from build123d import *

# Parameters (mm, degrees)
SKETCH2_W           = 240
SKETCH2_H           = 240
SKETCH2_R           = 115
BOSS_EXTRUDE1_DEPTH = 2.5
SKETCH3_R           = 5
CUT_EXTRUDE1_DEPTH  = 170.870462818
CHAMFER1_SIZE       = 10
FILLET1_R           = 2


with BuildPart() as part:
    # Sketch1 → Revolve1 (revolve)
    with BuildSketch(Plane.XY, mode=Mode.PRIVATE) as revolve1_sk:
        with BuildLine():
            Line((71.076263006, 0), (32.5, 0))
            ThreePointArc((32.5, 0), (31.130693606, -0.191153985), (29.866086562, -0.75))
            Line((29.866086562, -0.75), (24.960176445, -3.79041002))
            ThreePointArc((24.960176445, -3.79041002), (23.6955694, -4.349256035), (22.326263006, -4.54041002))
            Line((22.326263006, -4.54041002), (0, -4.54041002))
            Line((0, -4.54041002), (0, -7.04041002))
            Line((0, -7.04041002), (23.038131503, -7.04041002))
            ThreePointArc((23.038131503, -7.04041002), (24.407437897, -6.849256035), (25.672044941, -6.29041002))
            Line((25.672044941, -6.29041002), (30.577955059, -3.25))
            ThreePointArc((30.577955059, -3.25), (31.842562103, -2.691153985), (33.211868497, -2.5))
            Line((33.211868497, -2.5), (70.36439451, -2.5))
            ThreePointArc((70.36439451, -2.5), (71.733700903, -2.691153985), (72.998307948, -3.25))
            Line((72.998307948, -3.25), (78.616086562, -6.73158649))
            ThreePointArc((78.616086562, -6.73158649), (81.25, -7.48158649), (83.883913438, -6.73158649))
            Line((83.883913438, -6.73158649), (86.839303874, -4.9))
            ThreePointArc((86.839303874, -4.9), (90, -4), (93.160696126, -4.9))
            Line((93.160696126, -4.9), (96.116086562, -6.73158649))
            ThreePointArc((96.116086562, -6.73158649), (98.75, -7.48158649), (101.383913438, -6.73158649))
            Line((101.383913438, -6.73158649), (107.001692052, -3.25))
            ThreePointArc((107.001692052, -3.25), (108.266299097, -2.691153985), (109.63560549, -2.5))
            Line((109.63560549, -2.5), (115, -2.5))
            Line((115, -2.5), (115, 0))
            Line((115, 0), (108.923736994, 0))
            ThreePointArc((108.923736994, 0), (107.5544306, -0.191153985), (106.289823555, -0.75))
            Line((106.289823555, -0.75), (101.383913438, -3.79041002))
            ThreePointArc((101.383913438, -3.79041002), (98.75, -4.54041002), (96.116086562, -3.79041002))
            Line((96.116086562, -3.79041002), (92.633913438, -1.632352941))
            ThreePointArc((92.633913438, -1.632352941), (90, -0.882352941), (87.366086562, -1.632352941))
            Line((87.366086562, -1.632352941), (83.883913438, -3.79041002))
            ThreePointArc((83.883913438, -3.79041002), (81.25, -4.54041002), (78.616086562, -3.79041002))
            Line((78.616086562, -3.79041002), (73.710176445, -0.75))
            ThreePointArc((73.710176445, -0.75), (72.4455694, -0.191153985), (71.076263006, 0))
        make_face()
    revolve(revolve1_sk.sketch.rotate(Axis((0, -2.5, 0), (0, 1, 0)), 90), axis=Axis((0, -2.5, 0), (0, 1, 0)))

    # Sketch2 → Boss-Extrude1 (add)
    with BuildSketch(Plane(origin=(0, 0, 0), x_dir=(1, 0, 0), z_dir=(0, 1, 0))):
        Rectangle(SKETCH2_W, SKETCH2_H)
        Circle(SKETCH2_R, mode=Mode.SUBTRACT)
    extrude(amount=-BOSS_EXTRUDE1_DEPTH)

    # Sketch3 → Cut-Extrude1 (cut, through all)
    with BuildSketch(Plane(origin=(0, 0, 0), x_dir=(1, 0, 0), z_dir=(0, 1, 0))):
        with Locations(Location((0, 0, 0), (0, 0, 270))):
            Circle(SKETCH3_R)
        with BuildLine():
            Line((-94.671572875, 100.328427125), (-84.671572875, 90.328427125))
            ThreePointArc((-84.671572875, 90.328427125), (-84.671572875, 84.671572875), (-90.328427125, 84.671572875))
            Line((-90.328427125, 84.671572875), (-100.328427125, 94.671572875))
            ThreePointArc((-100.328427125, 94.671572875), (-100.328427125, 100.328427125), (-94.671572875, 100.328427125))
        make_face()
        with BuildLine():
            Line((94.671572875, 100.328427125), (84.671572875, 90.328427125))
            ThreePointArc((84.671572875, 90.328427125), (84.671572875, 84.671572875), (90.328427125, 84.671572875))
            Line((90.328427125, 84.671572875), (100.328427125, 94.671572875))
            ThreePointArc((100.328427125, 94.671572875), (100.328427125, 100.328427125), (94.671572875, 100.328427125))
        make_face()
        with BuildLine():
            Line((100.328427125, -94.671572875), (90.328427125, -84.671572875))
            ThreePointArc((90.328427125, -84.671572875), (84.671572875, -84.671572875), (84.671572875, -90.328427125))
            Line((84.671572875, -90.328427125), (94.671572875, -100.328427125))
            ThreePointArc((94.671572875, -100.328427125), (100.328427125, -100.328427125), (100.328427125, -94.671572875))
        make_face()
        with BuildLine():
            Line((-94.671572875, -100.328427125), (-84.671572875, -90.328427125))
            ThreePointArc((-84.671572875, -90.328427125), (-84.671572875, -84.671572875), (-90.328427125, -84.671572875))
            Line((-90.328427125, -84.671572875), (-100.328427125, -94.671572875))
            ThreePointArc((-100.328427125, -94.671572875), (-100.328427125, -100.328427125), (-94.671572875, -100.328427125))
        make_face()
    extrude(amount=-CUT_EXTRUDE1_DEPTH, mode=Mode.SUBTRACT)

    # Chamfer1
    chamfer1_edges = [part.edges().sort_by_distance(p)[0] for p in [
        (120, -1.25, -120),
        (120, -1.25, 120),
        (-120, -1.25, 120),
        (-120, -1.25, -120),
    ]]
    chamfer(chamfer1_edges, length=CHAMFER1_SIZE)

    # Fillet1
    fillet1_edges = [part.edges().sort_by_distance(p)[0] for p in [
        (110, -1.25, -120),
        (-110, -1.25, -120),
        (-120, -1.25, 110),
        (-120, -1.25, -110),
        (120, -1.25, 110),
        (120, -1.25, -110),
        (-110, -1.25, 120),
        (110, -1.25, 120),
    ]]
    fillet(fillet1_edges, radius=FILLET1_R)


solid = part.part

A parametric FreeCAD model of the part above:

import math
import FreeCAD as App
import Part
import Sketcher

V = App.Vector
Q = App.Units.Quantity


def edges_at(feature, points):
    """Names of the edges that pass closest to the given points."""
    edges = feature.Shape.Edges
    near = lambda p: min(range(len(edges)), key=lambda i: edges[i].distToShape(Part.Vertex(*p))[0])
    return sorted({f"Edge{near(p) + 1}" for p in points})


def add_polygon(sketch, points):
    """Adds a closed chain of lines whose ends are joined by coincident constraints."""
    first, n = sketch.GeometryCount, len(points)
    for a, b in zip(points, points[1:] + points[:1]):
        sketch.addGeometry(Part.LineSegment(App.Vector(*a, 0), App.Vector(*b, 0)), False)
    for i in range(n):
        sketch.addConstraint(Sketcher.Constraint("Coincident", first + i, 2, first + (i + 1) % n, 1))

doc = App.newDocument("Part")
body = doc.addObject("PartDesign::Body", "Body")

# Sketch on XY plane
sketch1 = body.newObject("Sketcher::SketchObject", "Sketch")
sketch1.AttachmentSupport = (doc.getObject("XY_Plane"), [""])
sketch1.MapMode = "FlatFace"
sketch1.addGeometry([
    Part.LineSegment(V(71.1, 0, 0), V(32.5, 0, 0)),  # 0
    Part.ArcOfCircle(Part.Circle(V(32.5, -5, 0), V(0, 0, 1), 5), math.radians(90), math.radians(122)),  # 1
    Part.LineSegment(V(29.9, -0.8, 0), V(25, -3.8, 0)),  # 2
    Part.ArcOfCircle(Part.Circle(V(22.3, 0.5, 0), V(0, 0, 1), 5), math.radians(-90), math.radians(-58)),  # 3
    Part.LineSegment(V(22.3, -4.5, 0), V(0, -4.5, 0)),  # 4
    Part.LineSegment(V(0, -4.5, 0), V(0, -7, 0)),  # 5
    Part.LineSegment(V(0, -7, 0), V(23, -7, 0)),  # 6
    Part.ArcOfCircle(Part.Circle(V(23, -2, 0), V(0, 0, 1), 5), math.radians(-90), math.radians(-58)),  # 7
    Part.LineSegment(V(25.7, -6.3, 0), V(30.6, -3.2, 0)),  # 8
    Part.ArcOfCircle(Part.Circle(V(33.2, -7.5, 0), V(0, 0, 1), 5), math.radians(90), math.radians(122)),  # 9
    Part.LineSegment(V(33.2, -2.5, 0), V(70.4, -2.5, 0)),  # 10
    Part.ArcOfCircle(Part.Circle(V(70.4, -7.5, 0), V(0, 0, 1), 5), math.radians(58), math.radians(90)),  # 11
    Part.LineSegment(V(73, -3.2, 0), V(78.6, -6.7, 0)),  # 12
    Part.ArcOfCircle(Part.Circle(V(81.2, -2.5, 0), V(0, 0, 1), 5), math.radians(-122), math.radians(-58)),  # 13
    Part.LineSegment(V(83.9, -6.7, 0), V(86.8, -4.9, 0)),  # 14
    Part.ArcOfCircle(Part.Circle(V(90, -10, 0), V(0, 0, 1), 6), math.radians(58), math.radians(122)),  # 15
    Part.LineSegment(V(93.2, -4.9, 0), V(96.1, -6.7, 0)),  # 16
    Part.ArcOfCircle(Part.Circle(V(98.8, -2.5, 0), V(0, 0, 1), 5), math.radians(-122), math.radians(-58)),  # 17
    Part.LineSegment(V(101.4, -6.7, 0), V(107, -3.2, 0)),  # 18
    Part.ArcOfCircle(Part.Circle(V(109.6, -7.5, 0), V(0, 0, 1), 5), math.radians(90), math.radians(122)),  # 19
    Part.LineSegment(V(109.6, -2.5, 0), V(115, -2.5, 0)),  # 20
    Part.LineSegment(V(115, -2.5, 0), V(115, 0, 0)),  # 21
    Part.LineSegment(V(115, 0, 0), V(108.9, 0, 0)),  # 22
    Part.ArcOfCircle(Part.Circle(V(108.9, -5, 0), V(0, 0, 1), 5), math.radians(90), math.radians(122)),  # 23
    Part.LineSegment(V(106.3, -0.8, 0), V(101.4, -3.8, 0)),  # 24
    Part.ArcOfCircle(Part.Circle(V(98.8, 0.5, 0), V(0, 0, 1), 5), math.radians(-122), math.radians(-58)),  # 25
    Part.LineSegment(V(96.1, -3.8, 0), V(92.6, -1.6, 0)),  # 26
    Part.ArcOfCircle(Part.Circle(V(90, -5.9, 0), V(0, 0, 1), 5), math.radians(58), math.radians(122)),  # 27
    Part.LineSegment(V(87.4, -1.6, 0), V(83.9, -3.8, 0)),  # 28
    Part.ArcOfCircle(Part.Circle(V(81.2, 0.5, 0), V(0, 0, 1), 5), math.radians(-122), math.radians(-58)),  # 29
    Part.LineSegment(V(78.6, -3.8, 0), V(73.7, -0.8, 0)),  # 30
    Part.ArcOfCircle(Part.Circle(V(71.1, -5, 0), V(0, 0, 1), 5), math.radians(58), math.radians(90)),  # 31
], False)
sketch1.addConstraint([
    Sketcher.Constraint("Tangent", 0, 2, 1, 1),
    Sketcher.Constraint("Tangent", 1, 2, 2, 1),
    Sketcher.Constraint("Tangent", 2, 2, 3, 2),
    Sketcher.Constraint("Tangent", 3, 1, 4, 1),
    Sketcher.Constraint("Coincident", 4, 2, 5, 1),
    Sketcher.Constraint("Coincident", 5, 2, 6, 1),
    Sketcher.Constraint("Tangent", 6, 2, 7, 1),
    Sketcher.Constraint("Tangent", 7, 2, 8, 1),
    Sketcher.Constraint("Tangent", 8, 2, 9, 2),
    Sketcher.Constraint("Tangent", 9, 1, 10, 1),
    Sketcher.Constraint("Tangent", 10, 2, 11, 2),
    Sketcher.Constraint("Tangent", 11, 1, 12, 1),
    Sketcher.Constraint("Tangent", 12, 2, 13, 1),
    Sketcher.Constraint("Tangent", 13, 2, 14, 1),
    Sketcher.Constraint("Tangent", 14, 2, 15, 2),
    Sketcher.Constraint("Tangent", 15, 1, 16, 1),
    Sketcher.Constraint("Tangent", 16, 2, 17, 1),
    Sketcher.Constraint("Tangent", 17, 2, 18, 1),
    Sketcher.Constraint("Tangent", 18, 2, 19, 2),
    Sketcher.Constraint("Tangent", 19, 1, 20, 1),
    Sketcher.Constraint("Coincident", 20, 2, 21, 1),
    Sketcher.Constraint("Coincident", 21, 2, 22, 1),
    Sketcher.Constraint("Tangent", 22, 2, 23, 1),
    Sketcher.Constraint("Tangent", 23, 2, 24, 1),
    Sketcher.Constraint("Tangent", 24, 2, 25, 2),
    Sketcher.Constraint("Tangent", 25, 1, 26, 1),
    Sketcher.Constraint("Tangent", 26, 2, 27, 1),
    Sketcher.Constraint("Tangent", 27, 2, 28, 1),
    Sketcher.Constraint("Tangent", 28, 2, 29, 2),
    Sketcher.Constraint("Tangent", 29, 1, 30, 1),
    Sketcher.Constraint("Tangent", 30, 2, 31, 1),
    Sketcher.Constraint("Tangent", 31, 2, 0, 1),
    Sketcher.Constraint("Horizontal", 0),
    Sketcher.Constraint("Horizontal", 4),
    Sketcher.Constraint("Vertical", 5),
    Sketcher.Constraint("Horizontal", 6),
    Sketcher.Constraint("Horizontal", 10),
    Sketcher.Constraint("Horizontal", 20),
    Sketcher.Constraint("Vertical", 21),
    Sketcher.Constraint("Horizontal", 22),
    Sketcher.Constraint("Equal", 1, 3),
    Sketcher.Constraint("Equal", 3, 7),
    Sketcher.Constraint("Equal", 7, 9),
    Sketcher.Constraint("Equal", 9, 11),
    Sketcher.Constraint("Equal", 11, 13),
    Sketcher.Constraint("Equal", 13, 17),
    Sketcher.Constraint("Equal", 17, 19),
    Sketcher.Constraint("Equal", 19, 23),
    Sketcher.Constraint("Equal", 23, 25),
    Sketcher.Constraint("Equal", 25, 27),
    Sketcher.Constraint("Equal", 27, 29),
    Sketcher.Constraint("Equal", 29, 31),
    Sketcher.Constraint("PointOnObject", 0, 2, -1),
    Sketcher.Constraint("PointOnObject", 4, 2, -2),
    Sketcher.Constraint("PointOnObject", 21, 2, -1),
    Sketcher.Constraint("Parallel", 2, 8),
    Sketcher.Constraint("Parallel", 8, 14),
    Sketcher.Constraint("Parallel", 12, 16),
    Sketcher.Constraint("Parallel", 14, 18),
    Sketcher.Constraint("Parallel", 18, 24),
    Sketcher.Constraint("Parallel", 16, 26),
    Sketcher.Constraint("Parallel", 24, 28),
    Sketcher.Constraint("Parallel", 26, 30),
    Sketcher.Constraint("Horizontal", 13, 3, 17, 3),
    Sketcher.Constraint("Horizontal", 11, 3, 19, 3),
    Sketcher.Constraint("Horizontal", 3, 3, 25, 3),
    Sketcher.Constraint("Horizontal", 25, 3, 29, 3),
    Sketcher.Constraint("Horizontal", 8, 2, 11, 1),
    Sketcher.Constraint("Vertical", 17, 3, 25, 3),
    Sketcher.Constraint("Vertical", 15, 3, 27, 3),
    Sketcher.Constraint("Equal", 5, 21),
    Sketcher.Constraint("Radius", 1, Q("5 mm")),
    Sketcher.Constraint("Radius", 15, Q("6 mm")),
    Sketcher.Constraint("DistanceY", 5, 2, 5, 1, Q("2.5 mm")),
    Sketcher.Constraint("DistanceX", -1, 1, 15, 3, Q("90 mm")),
    Sketcher.Constraint("DistanceY", 15, 3, -1, 1, Q("10 mm")),
    Sketcher.Constraint("DistanceX", -1, 1, 20, 2, Q("115 mm")),
    Sketcher.Constraint("DistanceX", -1, 1, 1, 3, Q("32.5 mm")),
    Sketcher.Constraint("DistanceY", 14, 2, -1, 1, Q("4.9 mm")),
    Sketcher.Constraint("DistanceX", 13, 3, 17, 3, Q("17.5 mm")),
    Sketcher.Constraint("DistanceX", 6, 1, 6, 2, Q("23.038132 mm")),
    Sketcher.Constraint("Distance", 2, Q("5.771659 mm")),
])
revolution = body.newObject("PartDesign::Revolution", "Revolution")
revolution.Profile = sketch1
revolution.ReferenceAxis = (sketch1, ["V_Axis"])
revolution.Angle = 360

# Sketch on XZ plane
sketch2 = body.newObject("Sketcher::SketchObject", "Sketch001")
sketch2.AttachmentSupport = (doc.getObject("XZ_Plane"), [""])
sketch2.MapMode = "FlatFace"
add_polygon(sketch2, [(-120, -120), (-120, 120), (120, 120), (120, -120)])  # lines 0-3
sketch2.addGeometry(Part.Circle(V(0, 0, 0), V(0, 0, 1), 115), False)  # 4
sketch2.addConstraint([
    Sketcher.Constraint("Vertical", 0),
    Sketcher.Constraint("Horizontal", 1),
    Sketcher.Constraint("Vertical", 2),
    Sketcher.Constraint("Horizontal", 3),
    Sketcher.Constraint("Coincident", 4, 3, -1, 1),
    Sketcher.Constraint("Symmetric", 0, 2, 2, 2, -1, 1),
    Sketcher.Constraint("Equal", 3, 0),
    Sketcher.Constraint("Diameter", 4, Q("230 mm")),
    Sketcher.Constraint("DistanceX", 1, 1, 1, 2, Q("240 mm")),
])
pad1 = body.newObject("PartDesign::Pad", "Pad")
pad1.Profile = sketch2
pad1.Length = 2.5

# Sketch on XZ plane
sketch3 = body.newObject("Sketcher::SketchObject", "Sketch002")
sketch3.AttachmentSupport = (doc.getObject("XZ_Plane"), [""])
sketch3.MapMode = "FlatFace"
sketch3.addGeometry([
    Part.Circle(V(0, 0, 0), V(0, 0, 1), 5),  # 0
    Part.LineSegment(V(-84.7, -90.3, 0), V(-94.7, -100.3, 0)),  # 1
    Part.ArcOfCircle(Part.Circle(V(-97.5, -97.5, 0), V(0, 0, 1), 4), math.radians(135), math.radians(315)),  # 2
    Part.LineSegment(V(-100.3, -94.7, 0), V(-90.3, -84.7, 0)),  # 3
    Part.ArcOfCircle(Part.Circle(V(-87.5, -87.5, 0), V(0, 0, 1), 4), math.radians(-45), math.radians(135)),  # 4
    Part.LineSegment(V(94.7, -100.3, 0), V(84.7, -90.3, 0)),  # 5
    Part.ArcOfCircle(Part.Circle(V(87.5, -87.5, 0), V(0, 0, 1), 4), math.radians(45), math.radians(225)),  # 6
    Part.LineSegment(V(90.3, -84.7, 0), V(100.3, -94.7, 0)),  # 7
    Part.ArcOfCircle(Part.Circle(V(97.5, -97.5, 0), V(0, 0, 1), 4), math.radians(-135), math.radians(45)),  # 8
    Part.LineSegment(V(100.3, 94.7, 0), V(90.3, 84.7, 0)),  # 9
    Part.ArcOfCircle(Part.Circle(V(87.5, 87.5, 0), V(0, 0, 1), 4), math.radians(135), math.radians(315)),  # 10
    Part.LineSegment(V(84.7, 90.3, 0), V(94.7, 100.3, 0)),  # 11
    Part.ArcOfCircle(Part.Circle(V(97.5, 97.5, 0), V(0, 0, 1), 4), math.radians(-45), math.radians(135)),  # 12
    Part.LineSegment(V(-94.7, 100.3, 0), V(-84.7, 90.3, 0)),  # 13
    Part.ArcOfCircle(Part.Circle(V(-87.5, 87.5, 0), V(0, 0, 1), 4), math.radians(-135), math.radians(45)),  # 14
    Part.LineSegment(V(-90.3, 84.7, 0), V(-100.3, 94.7, 0)),  # 15
    Part.ArcOfCircle(Part.Circle(V(-97.5, 97.5, 0), V(0, 0, 1), 4), math.radians(45), math.radians(225)),  # 16
], False)
sketch3.addConstraint([
    Sketcher.Constraint("Tangent", 1, 2, 2, 2),
    Sketcher.Constraint("Tangent", 2, 1, 3, 1),
    Sketcher.Constraint("Tangent", 3, 2, 4, 2),
    Sketcher.Constraint("Tangent", 4, 1, 1, 1),
    Sketcher.Constraint("Tangent", 5, 2, 6, 2),
    Sketcher.Constraint("Tangent", 6, 1, 7, 1),
    Sketcher.Constraint("Tangent", 7, 2, 8, 2),
    Sketcher.Constraint("Tangent", 8, 1, 5, 1),
    Sketcher.Constraint("Tangent", 9, 2, 10, 2),
    Sketcher.Constraint("Tangent", 10, 1, 11, 1),
    Sketcher.Constraint("Tangent", 11, 2, 12, 2),
    Sketcher.Constraint("Tangent", 12, 1, 9, 1),
    Sketcher.Constraint("Tangent", 13, 2, 14, 2),
    Sketcher.Constraint("Tangent", 14, 1, 15, 1),
    Sketcher.Constraint("Tangent", 15, 2, 16, 2),
    Sketcher.Constraint("Tangent", 16, 1, 13, 1),
    Sketcher.Constraint("Coincident", 0, 3, -1, 1),
    Sketcher.Constraint("Equal", 2, 4),
    Sketcher.Constraint("Equal", 4, 6),
    Sketcher.Constraint("Equal", 6, 8),
    Sketcher.Constraint("Equal", 8, 10),
    Sketcher.Constraint("Equal", 10, 12),
    Sketcher.Constraint("Equal", 12, 14),
    Sketcher.Constraint("Equal", 14, 16),
    Sketcher.Constraint("Symmetric", 4, 3, 10, 3, -1, 1),
    Sketcher.Constraint("Symmetric", 2, 3, 12, 3, -1, 1),
    Sketcher.Constraint("Symmetric", 6, 3, 14, 3, -1, 1),
    Sketcher.Constraint("Symmetric", 8, 3, 16, 3, -1, 1),
    Sketcher.Constraint("Symmetric", 4, 3, 6, 3, -2),
    Sketcher.Constraint("Symmetric", 2, 3, 8, 3, -2),
    Sketcher.Constraint("Perpendicular", 3, 5),
    Sketcher.Constraint("Diameter", 0, Q("10 mm")),
    Sketcher.Constraint("Radius", 2, Q("4 mm")),
    Sketcher.Constraint("DistanceX", 2, 3, 4, 3, Q("10 mm")),
    Sketcher.Constraint("DistanceX", 4, 3, 6, 3, Q("175 mm")),
    Sketcher.Constraint("DistanceY", 6, 3, 10, 3, Q("175 mm")),
])
pocket1 = body.newObject("PartDesign::Pocket", "Pocket")
pocket1.Profile = sketch3
pocket1.Type = "ThroughAll"
pocket1.Reversed = True
doc.recompute()

chamfer = body.newObject("PartDesign::Chamfer", "Chamfer")
chamfer.Base = (pocket1, edges_at(pocket1, [
    (120, -1.25, -120),
    (120, -1.25, 120),
    (-120, -1.25, 120),
    (-120, -1.25, -120),
]))
chamfer.Size = 10
doc.recompute()

fillet = body.newObject("PartDesign::Fillet", "Fillet")
fillet.Base = (chamfer, edges_at(chamfer, [
    (110, -1.25, -120),
    (-110, -1.25, -120),
    (-120, -1.25, 110),
    (-120, -1.25, -110),
    (120, -1.25, 110),
    (120, -1.25, -110),
    (-110, -1.25, 120),
    (110, -1.25, 120),
]))
fillet.Radius = 2

doc.recompute()
